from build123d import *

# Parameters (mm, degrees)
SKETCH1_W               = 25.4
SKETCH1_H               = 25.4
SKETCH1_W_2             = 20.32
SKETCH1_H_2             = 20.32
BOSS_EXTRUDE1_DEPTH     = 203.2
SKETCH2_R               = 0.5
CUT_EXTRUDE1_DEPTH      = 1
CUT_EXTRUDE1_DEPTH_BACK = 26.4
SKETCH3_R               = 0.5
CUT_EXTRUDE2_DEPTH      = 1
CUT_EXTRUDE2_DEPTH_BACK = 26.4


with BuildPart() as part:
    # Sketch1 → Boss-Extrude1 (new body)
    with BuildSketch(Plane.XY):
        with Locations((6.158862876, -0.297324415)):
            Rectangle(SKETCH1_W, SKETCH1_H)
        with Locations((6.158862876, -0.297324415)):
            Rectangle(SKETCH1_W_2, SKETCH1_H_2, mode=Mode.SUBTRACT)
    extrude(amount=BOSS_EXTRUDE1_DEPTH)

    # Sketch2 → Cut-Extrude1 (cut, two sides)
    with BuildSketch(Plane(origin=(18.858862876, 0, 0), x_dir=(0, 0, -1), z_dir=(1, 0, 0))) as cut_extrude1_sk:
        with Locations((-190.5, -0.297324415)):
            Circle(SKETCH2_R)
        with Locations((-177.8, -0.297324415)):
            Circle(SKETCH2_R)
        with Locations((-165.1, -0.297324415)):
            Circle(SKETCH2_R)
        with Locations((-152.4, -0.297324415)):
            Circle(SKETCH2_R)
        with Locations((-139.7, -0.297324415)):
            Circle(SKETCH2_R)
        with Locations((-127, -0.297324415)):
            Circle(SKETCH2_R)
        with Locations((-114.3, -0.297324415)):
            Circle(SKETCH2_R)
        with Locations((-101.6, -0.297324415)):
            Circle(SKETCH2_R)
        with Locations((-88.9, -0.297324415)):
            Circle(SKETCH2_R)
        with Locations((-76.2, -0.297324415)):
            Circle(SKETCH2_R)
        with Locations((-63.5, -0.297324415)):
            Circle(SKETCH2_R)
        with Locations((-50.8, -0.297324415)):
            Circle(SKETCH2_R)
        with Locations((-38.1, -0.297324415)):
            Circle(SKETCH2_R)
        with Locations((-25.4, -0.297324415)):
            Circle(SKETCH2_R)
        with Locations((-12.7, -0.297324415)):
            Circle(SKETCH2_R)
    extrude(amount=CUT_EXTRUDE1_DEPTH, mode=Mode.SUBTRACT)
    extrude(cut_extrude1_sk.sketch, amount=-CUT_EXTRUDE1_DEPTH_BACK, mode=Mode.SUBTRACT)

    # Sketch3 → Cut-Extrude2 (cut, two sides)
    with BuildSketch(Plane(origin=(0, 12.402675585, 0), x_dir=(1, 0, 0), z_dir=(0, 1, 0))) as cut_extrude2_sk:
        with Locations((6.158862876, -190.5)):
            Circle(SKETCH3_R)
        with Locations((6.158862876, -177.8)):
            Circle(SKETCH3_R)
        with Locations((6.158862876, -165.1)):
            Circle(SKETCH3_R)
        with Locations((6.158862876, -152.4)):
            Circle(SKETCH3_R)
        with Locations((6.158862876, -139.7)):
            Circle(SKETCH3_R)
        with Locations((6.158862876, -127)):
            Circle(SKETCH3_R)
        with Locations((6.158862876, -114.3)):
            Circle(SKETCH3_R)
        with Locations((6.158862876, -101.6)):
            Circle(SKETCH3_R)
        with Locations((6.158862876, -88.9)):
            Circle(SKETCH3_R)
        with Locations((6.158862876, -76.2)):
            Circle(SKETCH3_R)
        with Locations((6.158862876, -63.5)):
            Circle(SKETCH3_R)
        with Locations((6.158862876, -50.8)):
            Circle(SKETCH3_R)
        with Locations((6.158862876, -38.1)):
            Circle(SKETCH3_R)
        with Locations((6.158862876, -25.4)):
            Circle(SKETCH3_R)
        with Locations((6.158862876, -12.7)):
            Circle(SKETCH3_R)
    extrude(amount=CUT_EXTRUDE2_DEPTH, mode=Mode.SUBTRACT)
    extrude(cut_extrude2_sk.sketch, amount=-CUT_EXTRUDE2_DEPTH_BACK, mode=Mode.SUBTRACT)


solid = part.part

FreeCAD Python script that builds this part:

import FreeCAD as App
import Part
import Sketcher
from FreeCAD import Vector
Q = App.Units.Quantity

doc = App.newDocument("Part")
params = doc.addObject("Spreadsheet::Sheet", "Params")
for row, (alias, value) in enumerate([
    ("sketch1_width", "1 in"),
    ("sketch1_width2", "0.8 in"),
    ("pad1_length", "8 in"),
], start=1):
    params.set(f"A{row}", alias)
    params.set(f"B{row}", "=" + value)
    params.setAlias(f"B{row}", alias)

body = doc.addObject("PartDesign::Body", "Body")

# Sketch on XY plane
sketch1 = body.newObject("Sketcher::SketchObject", "Sketch")
sketch1.AttachmentSupport = (doc.getObject("XY_Plane"), [""])
sketch1.MapMode = "FlatFace"
sketch1.addGeometry([
    Part.LineSegment(Vector(-7, 12, 0), Vector(-7, -13, 0)),  # 0
    Part.LineSegment(Vector(-7, -13, 0), Vector(19, -13, 0)),  # 1
    Part.LineSegment(Vector(19, -13, 0), Vector(19, 12, 0)),  # 2
    Part.LineSegment(Vector(19, 12, 0), Vector(-7, 12, 0)),  # 3
    Part.LineSegment(Vector(16, -10, 0), Vector(-4, -10, 0)),  # 4
    Part.LineSegment(Vector(-4, -10, 0), Vector(-4, 10, 0)),  # 5
    Part.LineSegment(Vector(-4, 10, 0), Vector(16, 10, 0)),  # 6
    Part.LineSegment(Vector(16, 10, 0), Vector(16, -10, 0)),  # 7
], False)
sketch1.addConstraint([
    Sketcher.Constraint("Coincident", 0, 2, 1, 1),
    Sketcher.Constraint("Coincident", 1, 2, 2, 1),
    Sketcher.Constraint("Coincident", 2, 2, 3, 1),
    Sketcher.Constraint("Coincident", 3, 2, 0, 1),
    Sketcher.Constraint("Coincident", 4, 2, 5, 1),
    Sketcher.Constraint("Coincident", 5, 2, 6, 1),
    Sketcher.Constraint("Coincident", 6, 2, 7, 1),
    Sketcher.Constraint("Coincident", 7, 2, 4, 1),
    Sketcher.Constraint("Vertical", 0),
    Sketcher.Constraint("Horizontal", 1),
    Sketcher.Constraint("Vertical", 2),
    Sketcher.Constraint("Horizontal", 3),
    Sketcher.Constraint("Horizontal", 4),
    Sketcher.Constraint("Vertical", 5),
    Sketcher.Constraint("Horizontal", 6),
    Sketcher.Constraint("Vertical", 7),
    Sketcher.Constraint("Equal", 3, 0),
    Sketcher.Constraint("Equal", 6, 5),
    Sketcher.Constraint("DistanceX", 1, 1, 1, 2, Q("1 in")),
    Sketcher.Constraint("DistanceX", 4, 2, 4, 1, Q("0.8 in")),
    Sketcher.Constraint("DistanceX", 0, 2, 4, 2, Q("0.1 in")),
    Sketcher.Constraint("DistanceY", 0, 2, 4, 2, Q("0.1 in")),
    Sketcher.Constraint("DistanceX", 0, 2, -1, 1, 6.541137),
    Sketcher.Constraint("DistanceY", 0, 2, -1, 1, 12.997324),
])
sketch1.setExpression("Constraints[18]", "Params.sketch1_width")
sketch1.setExpression("Constraints[19]", "Params.sketch1_width2")
pad1 = body.newObject("PartDesign::Pad", "Pad")
pad1.Profile = sketch1
pad1.setExpression("Length", "Params.pad1_length")

# Sketch on YZ plane
sketch2 = body.newObject("Sketcher::SketchObject", "Sketch001")
sketch2.AttachmentSupport = (doc.getObject("YZ_Plane"), [""])
sketch2.MapMode = "FlatFace"
sketch2.AttachmentOffset = App.Placement(Vector(0, 0, 18.858863), App.Rotation())
sketch2.addGeometry([
    Part.Circle(Vector(-0.3, 190.5, 0), Vector(0, 0, 1), 0.5),  # 0
    Part.Circle(Vector(-0.3, 177.8, 0), Vector(0, 0, 1), 0.5),  # 1
    Part.Circle(Vector(-0.3, 165.1, 0), Vector(0, 0, 1), 0.5),  # 2
    Part.Circle(Vector(-0.3, 152.4, 0), Vector(0, 0, 1), 0.5),  # 3
    Part.Circle(Vector(-0.3, 139.7, 0), Vector(0, 0, 1), 0.5),  # 4
    Part.Circle(Vector(-0.3, 127, 0), Vector(0, 0, 1), 0.5),  # 5
    Part.Circle(Vector(-0.3, 114.3, 0), Vector(0, 0, 1), 0.5),  # 6
    Part.Circle(Vector(-0.3, 101.6, 0), Vector(0, 0, 1), 0.5),  # 7
    Part.Circle(Vector(-0.3, 88.9, 0), Vector(0, 0, 1), 0.5),  # 8
    Part.Circle(Vector(-0.3, 76.2, 0), Vector(0, 0, 1), 0.5),  # 9
    Part.Circle(Vector(-0.3, 63.5, 0), Vector(0, 0, 1), 0.5),  # 10
    Part.Circle(Vector(-0.3, 50.8, 0), Vector(0, 0, 1), 0.5),  # 11
    Part.Circle(Vector(-0.3, 38.1, 0), Vector(0, 0, 1), 0.5),  # 12
    Part.Circle(Vector(-0.3, 25.4, 0), Vector(0, 0, 1), 0.5),  # 13
    Part.Circle(Vector(-0.3, 12.7, 0), Vector(0, 0, 1), 0.5),  # 14
], False)
sketch2.addConstraint([
    Sketcher.Constraint("Equal", 0, 1),
    Sketcher.Constraint("Equal", 1, 2),
    Sketcher.Constraint("Equal", 2, 3),
    Sketcher.Constraint("Equal", 3, 4),
    Sketcher.Constraint("Equal", 4, 5),
    Sketcher.Constraint("Equal", 5, 6),
    Sketcher.Constraint("Equal", 6, 7),
    Sketcher.Constraint("Equal", 7, 8),
    Sketcher.Constraint("Equal", 8, 9),
    Sketcher.Constraint("Equal", 9, 10),
    Sketcher.Constraint("Equal", 10, 11),
    Sketcher.Constraint("Equal", 11, 12),
    Sketcher.Constraint("Equal", 12, 13),
    Sketcher.Constraint("Equal", 13, 14),
    Sketcher.Constraint("Vertical", 0, 3, 1, 3),
    Sketcher.Constraint("Vertical", 1, 3, 2, 3),
    Sketcher.Constraint("Vertical", 2, 3, 3, 3),
    Sketcher.Constraint("Vertical", 3, 3, 4, 3),
    Sketcher.Constraint("Vertical", 4, 3, 5, 3),
    Sketcher.Constraint("Vertical", 5, 3, 6, 3),
    Sketcher.Constraint("Vertical", 6, 3, 7, 3),
    Sketcher.Constraint("Vertical", 7, 3, 8, 3),
    Sketcher.Constraint("Vertical", 8, 3, 9, 3),
    Sketcher.Constraint("Vertical", 9, 3, 10, 3),
    Sketcher.Constraint("Vertical", 10, 3, 11, 3),
    Sketcher.Constraint("Vertical", 11, 3, 12, 3),
    Sketcher.Constraint("Vertical", 12, 3, 13, 3),
    Sketcher.Constraint("Vertical", 13, 3, 14, 3),
    Sketcher.Constraint("DistanceY", -1, 1, 1, 3, Q("7 in")),
    Sketcher.Constraint("DistanceY", -1, 1, 3, 3, Q("6 in")),
    Sketcher.Constraint("DistanceY", -1, 1, 5, 3, Q("5 in")),
    Sketcher.Constraint("DistanceY", -1, 1, 7, 3, Q("4 in")),
    Sketcher.Constraint("DistanceY", -1, 1, 9, 3, Q("3 in")),
    Sketcher.Constraint("DistanceY", -1, 1, 11, 3, Q("2 in")),
    Sketcher.Constraint("DistanceY", -1, 1, 13, 3, Q("1 in")),
    Sketcher.Constraint("DistanceY", 2, 3, 0, 3, Q("1 in")),
    Sketcher.Constraint("DistanceY", 4, 3, 2, 3, Q("1 in")),
    Sketcher.Constraint("DistanceY", 6, 3, 4, 3, Q("1 in")),
    Sketcher.Constraint("DistanceY", 8, 3, 6, 3, Q("1 in")),
    Sketcher.Constraint("DistanceY", 10, 3, 8, 3, Q("1 in")),
    Sketcher.Constraint("DistanceY", 12, 3, 10, 3, Q("1 in")),
    Sketcher.Constraint("DistanceY", 14, 3, 12, 3, Q("1 in")),
    Sketcher.Constraint("DistanceY", -1, 1, 0, 3, Q("7.5 in")),
    Sketcher.Constraint("Diameter", 0, 1.0),
    Sketcher.Constraint("DistanceX", 0, 3, -1, 1, 0.297324),
])
pocket1 = body.newObject("PartDesign::Pocket", "Pocket")
pocket1.Profile = sketch2
pocket1.Type = "ThroughAll"
pocket1.Midplane = True

# Sketch on XZ plane
sketch3 = body.newObject("Sketcher::SketchObject", "Sketch002")
sketch3.AttachmentSupport = (doc.getObject("XZ_Plane"), [""])
sketch3.MapMode = "FlatFace"
sketch3.AttachmentOffset = App.Placement(Vector(0, 0, -12.402676), App.Rotation())
sketch3.addGeometry([
    Part.Circle(Vector(6.2, 190.5, 0), Vector(0, 0, 1), 0.5),  # 0
    Part.Circle(Vector(6.2, 177.8, 0), Vector(0, 0, 1), 0.5),  # 1
    Part.Circle(Vector(6.2, 165.1, 0), Vector(0, 0, 1), 0.5),  # 2
    Part.Circle(Vector(6.2, 152.4, 0), Vector(0, 0, 1), 0.5),  # 3
    Part.Circle(Vector(6.2, 139.7, 0), Vector(0, 0, 1), 0.5),  # 4
    Part.Circle(Vector(6.2, 127, 0), Vector(0, 0, 1), 0.5),  # 5
    Part.Circle(Vector(6.2, 114.3, 0), Vector(0, 0, 1), 0.5),  # 6
    Part.Circle(Vector(6.2, 101.6, 0), Vector(0, 0, 1), 0.5),  # 7
    Part.Circle(Vector(6.2, 88.9, 0), Vector(0, 0, 1), 0.5),  # 8
    Part.Circle(Vector(6.2, 76.2, 0), Vector(0, 0, 1), 0.5),  # 9
    Part.Circle(Vector(6.2, 63.5, 0), Vector(0, 0, 1), 0.5),  # 10
    Part.Circle(Vector(6.2, 50.8, 0), Vector(0, 0, 1), 0.5),  # 11
    Part.Circle(Vector(6.2, 38.1, 0), Vector(0, 0, 1), 0.5),  # 12
    Part.Circle(Vector(6.2, 25.4, 0), Vector(0, 0, 1), 0.5),  # 13
    Part.Circle(Vector(6.2, 12.7, 0), Vector(0, 0, 1), 0.5),  # 14
], False)
sketch3.addConstraint([
    Sketcher.Constraint("Equal", 0, 1),
    Sketcher.Constraint("Equal", 1, 2),
    Sketcher.Constraint("Equal", 2, 3),
    Sketcher.Constraint("Equal", 3, 4),
    Sketcher.Constraint("Equal", 4, 5),
    Sketcher.Constraint("Equal", 5, 6),
    Sketcher.Constraint("Equal", 6, 7),
    Sketcher.Constraint("Equal", 7, 8),
    Sketcher.Constraint("Equal", 8, 9),
    Sketcher.Constraint("Equal", 9, 10),
    Sketcher.Constraint("Equal", 10, 11),
    Sketcher.Constraint("Equal", 11, 12),
    Sketcher.Constraint("Equal", 12, 13),
    Sketcher.Constraint("Equal", 13, 14),
    Sketcher.Constraint("Vertical", 0, 3, 1, 3),
    Sketcher.Constraint("Vertical", 1, 3, 2, 3),
    Sketcher.Constraint("Vertical", 2, 3, 3, 3),
    Sketcher.Constraint("Vertical", 3, 3, 4, 3),
    Sketcher.Constraint("Vertical", 4, 3, 5, 3),
    Sketcher.Constraint("Vertical", 5, 3, 6, 3),
    Sketcher.Constraint("Vertical", 6, 3, 7, 3),
    Sketcher.Constraint("Vertical", 7, 3, 8, 3),
    Sketcher.Constraint("Vertical", 8, 3, 9, 3),
    Sketcher.Constraint("Vertical", 9, 3, 10, 3),
    Sketcher.Constraint("Vertical", 10, 3, 11, 3),
    Sketcher.Constraint("Vertical", 11, 3, 12, 3),
    Sketcher.Constraint("Vertical", 12, 3, 13, 3),
    Sketcher.Constraint("Vertical", 13, 3, 14, 3),
    Sketcher.Constraint("DistanceY", -1, 1, 1, 3, Q("7 in")),
    Sketcher.Constraint("DistanceY", -1, 1, 3, 3, Q("6 in")),
    Sketcher.Constraint("DistanceY", -1, 1, 5, 3, Q("5 in")),
    Sketcher.Constraint("DistanceY", -1, 1, 7, 3, Q("4 in")),
    Sketcher.Constraint("DistanceY", -1, 1, 9, 3, Q("3 in")),
    Sketcher.Constraint("DistanceY", -1, 1, 11, 3, Q("2 in")),
    Sketcher.Constraint("DistanceY", -1, 1, 13, 3, Q("1 in")),
    Sketcher.Constraint("DistanceY", 2, 3, 0, 3, Q("1 in")),
    Sketcher.Constraint("DistanceY", 4, 3, 2, 3, Q("1 in")),
    Sketcher.Constraint("DistanceY", 6, 3, 4, 3, Q("1 in")),
    Sketcher.Constraint("DistanceY", 8, 3, 6, 3, Q("1 in")),
    Sketcher.Constraint("DistanceY", 10, 3, 8, 3, Q("1 in")),
    Sketcher.Constraint("DistanceY", 12, 3, 10, 3, Q("1 in")),
    Sketcher.Constraint("DistanceY", 14, 3, 12, 3, Q("1 in")),
    Sketcher.Constraint("DistanceY", -1, 1, 0, 3, Q("7.5 in")),
    Sketcher.Constraint("Diameter", 0, 1.0),
    Sketcher.Constraint("DistanceX", -1, 1, 0, 3, 6.158863),
])
pocket2 = body.newObject("PartDesign::Pocket", "Pocket001")
pocket2.Profile = sketch3
pocket2.Type = "ThroughAll"
pocket2.Midplane = True

doc.recompute()
